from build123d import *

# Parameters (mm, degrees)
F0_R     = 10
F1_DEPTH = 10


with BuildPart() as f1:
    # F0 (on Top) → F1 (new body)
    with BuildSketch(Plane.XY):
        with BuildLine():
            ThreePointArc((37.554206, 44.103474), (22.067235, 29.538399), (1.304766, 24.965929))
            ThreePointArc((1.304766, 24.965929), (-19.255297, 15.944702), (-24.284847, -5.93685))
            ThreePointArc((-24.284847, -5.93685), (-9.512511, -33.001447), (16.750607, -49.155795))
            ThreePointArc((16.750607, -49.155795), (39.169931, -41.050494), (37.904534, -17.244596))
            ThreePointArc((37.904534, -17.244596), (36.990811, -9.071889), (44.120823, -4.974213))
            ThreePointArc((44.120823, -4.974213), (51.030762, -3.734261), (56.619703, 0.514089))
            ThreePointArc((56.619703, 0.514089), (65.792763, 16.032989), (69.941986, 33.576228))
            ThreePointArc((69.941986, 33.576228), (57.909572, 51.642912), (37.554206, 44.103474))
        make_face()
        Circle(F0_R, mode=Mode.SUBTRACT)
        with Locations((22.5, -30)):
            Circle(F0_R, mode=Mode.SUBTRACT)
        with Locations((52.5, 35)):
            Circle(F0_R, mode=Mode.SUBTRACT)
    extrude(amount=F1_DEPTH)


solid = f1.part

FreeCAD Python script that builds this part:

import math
import FreeCAD as App
import Part
import Sketcher
from FreeCAD import Vector

doc = App.newDocument("Part")
body = doc.addObject("PartDesign::Body", "Body")

sketch1 = body.newObject("Sketcher::SketchObject", "Sketch")
sketch1.AttachmentSupport = (doc.getObject("XY_Plane"), [""])
sketch1.MapMode = "FlatFace"
sketch1.addGeometry([
    Part.ArcOfCircle(Part.Circle(Vector(3, 65, 0), Vector(0, 0, 1), 40), math.radians(-93), math.radians(-31)),
    Part.ArcOfCircle(Part.Circle(Vector(0, 0, 0), Vector(0, 0, 1), 25), math.radians(87), math.radians(194)),
    Part.ArcOfCircle(Part.Circle(Vector(34, 8, 0), Vector(0, 0, 1), 60), math.radians(-166), math.radians(-107)),
    Part.ArcOfCircle(Part.Circle(Vector(23, -30, 0), Vector(0, 0, 1), 20), math.radians(-107), math.radians(40)),
    Part.ArcOfCircle(Part.Circle(Vector(44, -12, 0), Vector(0, 0, 1), 7), math.radians(87), math.radians(220)),
    Part.ArcOfCircle(Part.Circle(Vector(45, 10, 0), Vector(0, 0, 1), 15), math.radians(-93), math.radians(-39)),
    Part.ArcOfCircle(Part.Circle(Vector(10, 38, 0), Vector(0, 0, 1), 60), math.radians(-39), math.radians(-5)),
    Part.ArcOfCircle(Part.Circle(Vector(52, 35, 0), Vector(0, 0, 1), 18), math.radians(-5), math.radians(149)),
    Part.Circle(Vector(22, -30, 0), Vector(0, 0, 1), 10),
    Part.Circle(Vector(0, 0, 0), Vector(0, 0, 1), 10),
    Part.Circle(Vector(52, 35, 0), Vector(0, 0, 1), 10),
], False)
sketch1.addConstraint([
    Sketcher.Constraint("Tangent", 0, 1, 1, 1),
    Sketcher.Constraint("Tangent", 1, 2, 2, 1),
    Sketcher.Constraint("Tangent", 2, 2, 3, 1),
    Sketcher.Constraint("Tangent", 3, 2, 4, 2),
    Sketcher.Constraint("Tangent", 4, 1, 5, 1),
    Sketcher.Constraint("Tangent", 5, 2, 6, 1),
    Sketcher.Constraint("Tangent", 6, 2, 7, 1),
    Sketcher.Constraint("Tangent", 7, 2, 0, 2),
    Sketcher.Constraint("Coincident", 1, 3, -1, 1),
    Sketcher.Constraint("Coincident", 9, 3, -1, 1),
    Sketcher.Constraint("Coincident", 8, 3, 3, 3),
    Sketcher.Constraint("Coincident", 10, 3, 7, 3),
    Sketcher.Constraint("Equal", 8, 9),
    Sketcher.Constraint("Equal", 9, 10),
    Sketcher.Constraint("Diameter", 8, 20.0),
    Sketcher.Constraint("Radius", 1, 25.000001),
    Sketcher.Constraint("Radius", 2, 59.999998),
    Sketcher.Constraint("Radius", 3, 20.0),
    Sketcher.Constraint("Radius", 4, 7.5),
    Sketcher.Constraint("Radius", 7, 17.5),
    Sketcher.Constraint("DistanceY", 3, 3, -1, 1, 30.0),
    Sketcher.Constraint("DistanceX", -1, 1, 5, 3, 45.000001),
    Sketcher.Constraint("DistanceY", -1, 1, 7, 3, 35.0),
    Sketcher.Constraint("DistanceX", -1, 1, 3, 3, 22.5),
    Sketcher.Constraint("DistanceX", -1, 1, 7, 3, 52.5),
    Sketcher.Constraint("Radius", 0, 39.999997),
    Sketcher.Constraint("Radius", 5, 14.999998),
    Sketcher.Constraint("Radius", 6, 60.000013),
    Sketcher.Constraint("DistanceX", 3, 2, 4, 3, 5.7767),
])
pad1 = body.newObject("PartDesign::Pad", "Pad")
pad1.Profile = sketch1
pad1.Length = 10

doc.recompute()
